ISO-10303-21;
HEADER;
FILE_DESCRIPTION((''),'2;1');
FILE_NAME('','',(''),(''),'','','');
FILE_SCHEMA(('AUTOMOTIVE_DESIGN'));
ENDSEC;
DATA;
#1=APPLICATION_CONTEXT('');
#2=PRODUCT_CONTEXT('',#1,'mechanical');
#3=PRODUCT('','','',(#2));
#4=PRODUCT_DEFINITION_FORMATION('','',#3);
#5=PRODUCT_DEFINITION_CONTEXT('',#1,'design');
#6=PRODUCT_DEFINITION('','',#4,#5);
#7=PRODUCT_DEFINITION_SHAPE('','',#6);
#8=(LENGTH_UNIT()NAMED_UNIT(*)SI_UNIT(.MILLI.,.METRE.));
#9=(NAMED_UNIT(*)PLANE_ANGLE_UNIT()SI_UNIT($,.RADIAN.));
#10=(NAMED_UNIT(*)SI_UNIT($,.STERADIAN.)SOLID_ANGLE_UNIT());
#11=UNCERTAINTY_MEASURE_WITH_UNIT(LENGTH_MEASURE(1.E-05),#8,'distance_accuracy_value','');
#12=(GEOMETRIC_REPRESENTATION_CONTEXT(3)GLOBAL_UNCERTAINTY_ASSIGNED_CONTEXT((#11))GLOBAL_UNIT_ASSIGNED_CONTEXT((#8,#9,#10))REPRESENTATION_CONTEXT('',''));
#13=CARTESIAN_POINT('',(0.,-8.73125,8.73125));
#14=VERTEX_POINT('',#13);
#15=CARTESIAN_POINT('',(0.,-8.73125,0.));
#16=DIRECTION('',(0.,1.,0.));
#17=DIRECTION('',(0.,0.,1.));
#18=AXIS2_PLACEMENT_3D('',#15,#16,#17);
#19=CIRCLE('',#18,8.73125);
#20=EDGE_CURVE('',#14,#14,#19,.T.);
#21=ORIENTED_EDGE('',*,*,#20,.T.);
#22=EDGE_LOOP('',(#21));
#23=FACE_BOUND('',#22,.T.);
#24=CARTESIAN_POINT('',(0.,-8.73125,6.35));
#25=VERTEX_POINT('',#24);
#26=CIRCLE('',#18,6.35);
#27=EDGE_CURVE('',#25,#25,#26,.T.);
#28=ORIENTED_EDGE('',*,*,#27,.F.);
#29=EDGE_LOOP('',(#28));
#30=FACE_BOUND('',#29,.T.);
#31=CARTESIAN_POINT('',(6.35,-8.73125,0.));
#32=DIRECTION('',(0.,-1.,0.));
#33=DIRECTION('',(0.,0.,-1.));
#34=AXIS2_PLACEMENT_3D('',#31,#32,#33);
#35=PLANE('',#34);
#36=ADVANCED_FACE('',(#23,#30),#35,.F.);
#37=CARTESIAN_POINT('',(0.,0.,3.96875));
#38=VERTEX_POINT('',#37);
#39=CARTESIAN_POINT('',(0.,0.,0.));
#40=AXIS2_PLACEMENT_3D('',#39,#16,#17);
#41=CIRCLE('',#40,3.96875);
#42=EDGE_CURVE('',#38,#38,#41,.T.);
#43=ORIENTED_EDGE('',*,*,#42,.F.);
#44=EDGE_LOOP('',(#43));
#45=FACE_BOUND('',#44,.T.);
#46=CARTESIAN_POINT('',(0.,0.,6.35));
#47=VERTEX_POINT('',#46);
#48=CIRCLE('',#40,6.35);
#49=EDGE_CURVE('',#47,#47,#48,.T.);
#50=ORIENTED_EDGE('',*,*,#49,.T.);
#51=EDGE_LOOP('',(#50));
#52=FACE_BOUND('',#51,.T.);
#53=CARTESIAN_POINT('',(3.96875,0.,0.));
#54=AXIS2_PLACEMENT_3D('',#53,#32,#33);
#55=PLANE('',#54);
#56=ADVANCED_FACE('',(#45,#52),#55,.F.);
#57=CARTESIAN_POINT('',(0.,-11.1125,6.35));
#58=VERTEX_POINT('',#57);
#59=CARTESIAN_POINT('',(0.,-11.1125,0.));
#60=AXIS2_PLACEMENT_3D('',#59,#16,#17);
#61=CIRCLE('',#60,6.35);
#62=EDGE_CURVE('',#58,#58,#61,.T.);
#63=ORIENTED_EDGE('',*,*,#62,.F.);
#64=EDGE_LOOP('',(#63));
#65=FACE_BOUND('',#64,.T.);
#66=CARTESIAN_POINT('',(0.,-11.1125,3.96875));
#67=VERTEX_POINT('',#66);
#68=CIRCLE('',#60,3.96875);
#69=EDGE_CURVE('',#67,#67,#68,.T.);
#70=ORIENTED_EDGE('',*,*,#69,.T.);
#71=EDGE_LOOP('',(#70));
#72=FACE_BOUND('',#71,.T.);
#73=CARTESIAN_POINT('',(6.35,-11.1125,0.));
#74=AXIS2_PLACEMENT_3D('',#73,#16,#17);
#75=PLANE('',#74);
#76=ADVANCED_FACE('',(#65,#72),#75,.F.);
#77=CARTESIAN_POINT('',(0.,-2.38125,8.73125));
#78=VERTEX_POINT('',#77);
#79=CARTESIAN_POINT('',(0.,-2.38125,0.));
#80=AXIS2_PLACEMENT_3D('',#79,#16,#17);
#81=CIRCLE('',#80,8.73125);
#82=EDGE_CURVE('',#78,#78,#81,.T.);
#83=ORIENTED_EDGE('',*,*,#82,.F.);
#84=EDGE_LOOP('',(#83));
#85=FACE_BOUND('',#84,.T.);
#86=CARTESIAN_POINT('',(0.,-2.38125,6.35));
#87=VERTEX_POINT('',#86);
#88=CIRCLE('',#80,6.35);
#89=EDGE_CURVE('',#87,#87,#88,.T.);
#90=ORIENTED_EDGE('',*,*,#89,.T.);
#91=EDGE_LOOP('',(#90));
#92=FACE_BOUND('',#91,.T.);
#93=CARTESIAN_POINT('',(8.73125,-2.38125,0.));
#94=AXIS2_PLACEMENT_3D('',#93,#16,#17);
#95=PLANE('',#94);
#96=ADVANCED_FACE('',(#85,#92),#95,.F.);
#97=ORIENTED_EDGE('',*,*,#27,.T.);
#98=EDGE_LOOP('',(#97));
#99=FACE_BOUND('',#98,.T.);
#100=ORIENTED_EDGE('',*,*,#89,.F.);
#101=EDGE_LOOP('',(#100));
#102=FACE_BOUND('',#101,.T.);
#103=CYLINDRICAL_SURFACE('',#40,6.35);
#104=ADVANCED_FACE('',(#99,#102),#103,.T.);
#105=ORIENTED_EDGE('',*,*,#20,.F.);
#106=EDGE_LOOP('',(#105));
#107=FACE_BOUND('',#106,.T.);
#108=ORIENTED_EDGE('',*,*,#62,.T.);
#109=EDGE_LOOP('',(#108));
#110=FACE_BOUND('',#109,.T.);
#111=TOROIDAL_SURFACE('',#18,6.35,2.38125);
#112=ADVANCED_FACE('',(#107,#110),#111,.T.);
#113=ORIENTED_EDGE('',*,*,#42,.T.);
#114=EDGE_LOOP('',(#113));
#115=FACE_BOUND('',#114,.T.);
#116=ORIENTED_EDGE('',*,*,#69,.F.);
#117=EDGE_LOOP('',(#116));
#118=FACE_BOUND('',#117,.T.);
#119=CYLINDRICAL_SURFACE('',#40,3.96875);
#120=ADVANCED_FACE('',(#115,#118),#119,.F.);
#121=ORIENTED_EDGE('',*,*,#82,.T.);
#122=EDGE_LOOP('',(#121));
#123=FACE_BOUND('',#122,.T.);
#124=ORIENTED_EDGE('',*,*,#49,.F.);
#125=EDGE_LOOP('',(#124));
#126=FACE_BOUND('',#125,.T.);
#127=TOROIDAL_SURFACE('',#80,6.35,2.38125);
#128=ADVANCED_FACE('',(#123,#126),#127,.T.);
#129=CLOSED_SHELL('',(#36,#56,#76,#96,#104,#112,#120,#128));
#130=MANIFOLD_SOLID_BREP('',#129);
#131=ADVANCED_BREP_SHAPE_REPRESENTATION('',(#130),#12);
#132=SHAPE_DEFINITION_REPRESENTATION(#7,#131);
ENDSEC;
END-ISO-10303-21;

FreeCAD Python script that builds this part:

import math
import FreeCAD as App
import Part
import Sketcher
Q = App.Units.Quantity

doc = App.newDocument("Part")
params = doc.addObject("Spreadsheet::Sheet", "Params")
for row, (alias, value) in enumerate([
    ("sketch1_radius", "0.09375 in"),
    ("sketch1_height", "0.25 in"),
    ("revolution_angle", "360 deg"),
], start=1):
    params.set(f"A{row}", alias)
    params.set(f"B{row}", "=" + value)
    params.setAlias(f"B{row}", alias)

body = doc.addObject("PartDesign::Body", "Body")

# Sketch on XY plane
sketch1 = body.newObject("Sketcher::SketchObject", "Sketch")
sketch1.AttachmentSupport = (doc.getObject("XY_Plane"), [""])
sketch1.MapMode = "FlatFace"
sketch1.addGeometry(Part.LineSegment(App.Vector(6.3, 0, 0), App.Vector(4, 0, 0)), False)
sketch1.addGeometry(Part.LineSegment(App.Vector(4, 0, 0), App.Vector(4, -11.1, 0)), False)
sketch1.addGeometry(Part.LineSegment(App.Vector(4, -11.1, 0), App.Vector(6.3, -11.1, 0)), False)
sketch1.addGeometry(Part.ArcOfCircle(Part.Circle(App.Vector(6.4, -8.7, 0), App.Vector(0, 0, 1), 2.4), math.radians(-90), math.radians(0)), False)
sketch1.addGeometry(Part.LineSegment(App.Vector(8.7, -8.7, 0), App.Vector(6.3, -8.7, 0)), False)
sketch1.addGeometry(Part.LineSegment(App.Vector(6.3, -8.7, 0), App.Vector(6.3, -2.4, 0)), False)
sketch1.addGeometry(Part.LineSegment(App.Vector(6.3, -2.4, 0), App.Vector(8.7, -2.4, 0)), False)
sketch1.addGeometry(Part.ArcOfCircle(Part.Circle(App.Vector(6.4, -2.4, 0), App.Vector(0, 0, 1), 2.4), math.radians(0), math.radians(90)), False)
sketch1.addConstraint(Sketcher.Constraint("Coincident", 0, 2, 1, 1))
sketch1.addConstraint(Sketcher.Constraint("Coincident", 1, 2, 2, 1))
sketch1.addConstraint(Sketcher.Constraint("Tangent", 2, 2, 3, 1))
sketch1.addConstraint(Sketcher.Constraint("Coincident", 3, 2, 4, 1))
sketch1.addConstraint(Sketcher.Constraint("Coincident", 4, 2, 5, 1))
sketch1.addConstraint(Sketcher.Constraint("Coincident", 5, 2, 6, 1))
sketch1.addConstraint(Sketcher.Constraint("Coincident", 6, 2, 7, 1))
sketch1.addConstraint(Sketcher.Constraint("Tangent", 7, 2, 0, 1))
sketch1.addConstraint(Sketcher.Constraint("Horizontal", 0))
sketch1.addConstraint(Sketcher.Constraint("Vertical", 1))
sketch1.addConstraint(Sketcher.Constraint("Horizontal", 2))
sketch1.addConstraint(Sketcher.Constraint("Horizontal", 4))
sketch1.addConstraint(Sketcher.Constraint("Vertical", 5))
sketch1.addConstraint(Sketcher.Constraint("Horizontal", 6))
sketch1.addConstraint(Sketcher.Constraint("Coincident", 4, 2, 3, 3))
sketch1.addConstraint(Sketcher.Constraint("Coincident", 5, 2, 7, 3))
sketch1.addConstraint(Sketcher.Constraint("Equal", 3, 7))
sketch1.addConstraint(Sketcher.Constraint("PointOnObject", 0, 2, -1))
sketch1.addConstraint(Sketcher.Constraint("Equal", 2, 4))
sketch1.addConstraint(Sketcher.Constraint("Radius", 3, Q("0.09375 in")))
sketch1.addConstraint(Sketcher.Constraint("DistanceY", 5, 1, 5, 2, Q("0.25 in")))
sketch1.addConstraint(Sketcher.Constraint("DistanceX", -1, 1, 3, 3, Q("0.25 in")))
sketch1.setExpression("Constraints[19]", "Params.sketch1_radius")
sketch1.setExpression("Constraints[20]", "Params.sketch1_height")
revolution = body.newObject("PartDesign::Revolution", "Revolution")
revolution.Profile = sketch1
revolution.ReferenceAxis = (sketch1, ["V_Axis"])
revolution.setExpression("Angle", "Params.revolution_angle")

doc.recompute()
